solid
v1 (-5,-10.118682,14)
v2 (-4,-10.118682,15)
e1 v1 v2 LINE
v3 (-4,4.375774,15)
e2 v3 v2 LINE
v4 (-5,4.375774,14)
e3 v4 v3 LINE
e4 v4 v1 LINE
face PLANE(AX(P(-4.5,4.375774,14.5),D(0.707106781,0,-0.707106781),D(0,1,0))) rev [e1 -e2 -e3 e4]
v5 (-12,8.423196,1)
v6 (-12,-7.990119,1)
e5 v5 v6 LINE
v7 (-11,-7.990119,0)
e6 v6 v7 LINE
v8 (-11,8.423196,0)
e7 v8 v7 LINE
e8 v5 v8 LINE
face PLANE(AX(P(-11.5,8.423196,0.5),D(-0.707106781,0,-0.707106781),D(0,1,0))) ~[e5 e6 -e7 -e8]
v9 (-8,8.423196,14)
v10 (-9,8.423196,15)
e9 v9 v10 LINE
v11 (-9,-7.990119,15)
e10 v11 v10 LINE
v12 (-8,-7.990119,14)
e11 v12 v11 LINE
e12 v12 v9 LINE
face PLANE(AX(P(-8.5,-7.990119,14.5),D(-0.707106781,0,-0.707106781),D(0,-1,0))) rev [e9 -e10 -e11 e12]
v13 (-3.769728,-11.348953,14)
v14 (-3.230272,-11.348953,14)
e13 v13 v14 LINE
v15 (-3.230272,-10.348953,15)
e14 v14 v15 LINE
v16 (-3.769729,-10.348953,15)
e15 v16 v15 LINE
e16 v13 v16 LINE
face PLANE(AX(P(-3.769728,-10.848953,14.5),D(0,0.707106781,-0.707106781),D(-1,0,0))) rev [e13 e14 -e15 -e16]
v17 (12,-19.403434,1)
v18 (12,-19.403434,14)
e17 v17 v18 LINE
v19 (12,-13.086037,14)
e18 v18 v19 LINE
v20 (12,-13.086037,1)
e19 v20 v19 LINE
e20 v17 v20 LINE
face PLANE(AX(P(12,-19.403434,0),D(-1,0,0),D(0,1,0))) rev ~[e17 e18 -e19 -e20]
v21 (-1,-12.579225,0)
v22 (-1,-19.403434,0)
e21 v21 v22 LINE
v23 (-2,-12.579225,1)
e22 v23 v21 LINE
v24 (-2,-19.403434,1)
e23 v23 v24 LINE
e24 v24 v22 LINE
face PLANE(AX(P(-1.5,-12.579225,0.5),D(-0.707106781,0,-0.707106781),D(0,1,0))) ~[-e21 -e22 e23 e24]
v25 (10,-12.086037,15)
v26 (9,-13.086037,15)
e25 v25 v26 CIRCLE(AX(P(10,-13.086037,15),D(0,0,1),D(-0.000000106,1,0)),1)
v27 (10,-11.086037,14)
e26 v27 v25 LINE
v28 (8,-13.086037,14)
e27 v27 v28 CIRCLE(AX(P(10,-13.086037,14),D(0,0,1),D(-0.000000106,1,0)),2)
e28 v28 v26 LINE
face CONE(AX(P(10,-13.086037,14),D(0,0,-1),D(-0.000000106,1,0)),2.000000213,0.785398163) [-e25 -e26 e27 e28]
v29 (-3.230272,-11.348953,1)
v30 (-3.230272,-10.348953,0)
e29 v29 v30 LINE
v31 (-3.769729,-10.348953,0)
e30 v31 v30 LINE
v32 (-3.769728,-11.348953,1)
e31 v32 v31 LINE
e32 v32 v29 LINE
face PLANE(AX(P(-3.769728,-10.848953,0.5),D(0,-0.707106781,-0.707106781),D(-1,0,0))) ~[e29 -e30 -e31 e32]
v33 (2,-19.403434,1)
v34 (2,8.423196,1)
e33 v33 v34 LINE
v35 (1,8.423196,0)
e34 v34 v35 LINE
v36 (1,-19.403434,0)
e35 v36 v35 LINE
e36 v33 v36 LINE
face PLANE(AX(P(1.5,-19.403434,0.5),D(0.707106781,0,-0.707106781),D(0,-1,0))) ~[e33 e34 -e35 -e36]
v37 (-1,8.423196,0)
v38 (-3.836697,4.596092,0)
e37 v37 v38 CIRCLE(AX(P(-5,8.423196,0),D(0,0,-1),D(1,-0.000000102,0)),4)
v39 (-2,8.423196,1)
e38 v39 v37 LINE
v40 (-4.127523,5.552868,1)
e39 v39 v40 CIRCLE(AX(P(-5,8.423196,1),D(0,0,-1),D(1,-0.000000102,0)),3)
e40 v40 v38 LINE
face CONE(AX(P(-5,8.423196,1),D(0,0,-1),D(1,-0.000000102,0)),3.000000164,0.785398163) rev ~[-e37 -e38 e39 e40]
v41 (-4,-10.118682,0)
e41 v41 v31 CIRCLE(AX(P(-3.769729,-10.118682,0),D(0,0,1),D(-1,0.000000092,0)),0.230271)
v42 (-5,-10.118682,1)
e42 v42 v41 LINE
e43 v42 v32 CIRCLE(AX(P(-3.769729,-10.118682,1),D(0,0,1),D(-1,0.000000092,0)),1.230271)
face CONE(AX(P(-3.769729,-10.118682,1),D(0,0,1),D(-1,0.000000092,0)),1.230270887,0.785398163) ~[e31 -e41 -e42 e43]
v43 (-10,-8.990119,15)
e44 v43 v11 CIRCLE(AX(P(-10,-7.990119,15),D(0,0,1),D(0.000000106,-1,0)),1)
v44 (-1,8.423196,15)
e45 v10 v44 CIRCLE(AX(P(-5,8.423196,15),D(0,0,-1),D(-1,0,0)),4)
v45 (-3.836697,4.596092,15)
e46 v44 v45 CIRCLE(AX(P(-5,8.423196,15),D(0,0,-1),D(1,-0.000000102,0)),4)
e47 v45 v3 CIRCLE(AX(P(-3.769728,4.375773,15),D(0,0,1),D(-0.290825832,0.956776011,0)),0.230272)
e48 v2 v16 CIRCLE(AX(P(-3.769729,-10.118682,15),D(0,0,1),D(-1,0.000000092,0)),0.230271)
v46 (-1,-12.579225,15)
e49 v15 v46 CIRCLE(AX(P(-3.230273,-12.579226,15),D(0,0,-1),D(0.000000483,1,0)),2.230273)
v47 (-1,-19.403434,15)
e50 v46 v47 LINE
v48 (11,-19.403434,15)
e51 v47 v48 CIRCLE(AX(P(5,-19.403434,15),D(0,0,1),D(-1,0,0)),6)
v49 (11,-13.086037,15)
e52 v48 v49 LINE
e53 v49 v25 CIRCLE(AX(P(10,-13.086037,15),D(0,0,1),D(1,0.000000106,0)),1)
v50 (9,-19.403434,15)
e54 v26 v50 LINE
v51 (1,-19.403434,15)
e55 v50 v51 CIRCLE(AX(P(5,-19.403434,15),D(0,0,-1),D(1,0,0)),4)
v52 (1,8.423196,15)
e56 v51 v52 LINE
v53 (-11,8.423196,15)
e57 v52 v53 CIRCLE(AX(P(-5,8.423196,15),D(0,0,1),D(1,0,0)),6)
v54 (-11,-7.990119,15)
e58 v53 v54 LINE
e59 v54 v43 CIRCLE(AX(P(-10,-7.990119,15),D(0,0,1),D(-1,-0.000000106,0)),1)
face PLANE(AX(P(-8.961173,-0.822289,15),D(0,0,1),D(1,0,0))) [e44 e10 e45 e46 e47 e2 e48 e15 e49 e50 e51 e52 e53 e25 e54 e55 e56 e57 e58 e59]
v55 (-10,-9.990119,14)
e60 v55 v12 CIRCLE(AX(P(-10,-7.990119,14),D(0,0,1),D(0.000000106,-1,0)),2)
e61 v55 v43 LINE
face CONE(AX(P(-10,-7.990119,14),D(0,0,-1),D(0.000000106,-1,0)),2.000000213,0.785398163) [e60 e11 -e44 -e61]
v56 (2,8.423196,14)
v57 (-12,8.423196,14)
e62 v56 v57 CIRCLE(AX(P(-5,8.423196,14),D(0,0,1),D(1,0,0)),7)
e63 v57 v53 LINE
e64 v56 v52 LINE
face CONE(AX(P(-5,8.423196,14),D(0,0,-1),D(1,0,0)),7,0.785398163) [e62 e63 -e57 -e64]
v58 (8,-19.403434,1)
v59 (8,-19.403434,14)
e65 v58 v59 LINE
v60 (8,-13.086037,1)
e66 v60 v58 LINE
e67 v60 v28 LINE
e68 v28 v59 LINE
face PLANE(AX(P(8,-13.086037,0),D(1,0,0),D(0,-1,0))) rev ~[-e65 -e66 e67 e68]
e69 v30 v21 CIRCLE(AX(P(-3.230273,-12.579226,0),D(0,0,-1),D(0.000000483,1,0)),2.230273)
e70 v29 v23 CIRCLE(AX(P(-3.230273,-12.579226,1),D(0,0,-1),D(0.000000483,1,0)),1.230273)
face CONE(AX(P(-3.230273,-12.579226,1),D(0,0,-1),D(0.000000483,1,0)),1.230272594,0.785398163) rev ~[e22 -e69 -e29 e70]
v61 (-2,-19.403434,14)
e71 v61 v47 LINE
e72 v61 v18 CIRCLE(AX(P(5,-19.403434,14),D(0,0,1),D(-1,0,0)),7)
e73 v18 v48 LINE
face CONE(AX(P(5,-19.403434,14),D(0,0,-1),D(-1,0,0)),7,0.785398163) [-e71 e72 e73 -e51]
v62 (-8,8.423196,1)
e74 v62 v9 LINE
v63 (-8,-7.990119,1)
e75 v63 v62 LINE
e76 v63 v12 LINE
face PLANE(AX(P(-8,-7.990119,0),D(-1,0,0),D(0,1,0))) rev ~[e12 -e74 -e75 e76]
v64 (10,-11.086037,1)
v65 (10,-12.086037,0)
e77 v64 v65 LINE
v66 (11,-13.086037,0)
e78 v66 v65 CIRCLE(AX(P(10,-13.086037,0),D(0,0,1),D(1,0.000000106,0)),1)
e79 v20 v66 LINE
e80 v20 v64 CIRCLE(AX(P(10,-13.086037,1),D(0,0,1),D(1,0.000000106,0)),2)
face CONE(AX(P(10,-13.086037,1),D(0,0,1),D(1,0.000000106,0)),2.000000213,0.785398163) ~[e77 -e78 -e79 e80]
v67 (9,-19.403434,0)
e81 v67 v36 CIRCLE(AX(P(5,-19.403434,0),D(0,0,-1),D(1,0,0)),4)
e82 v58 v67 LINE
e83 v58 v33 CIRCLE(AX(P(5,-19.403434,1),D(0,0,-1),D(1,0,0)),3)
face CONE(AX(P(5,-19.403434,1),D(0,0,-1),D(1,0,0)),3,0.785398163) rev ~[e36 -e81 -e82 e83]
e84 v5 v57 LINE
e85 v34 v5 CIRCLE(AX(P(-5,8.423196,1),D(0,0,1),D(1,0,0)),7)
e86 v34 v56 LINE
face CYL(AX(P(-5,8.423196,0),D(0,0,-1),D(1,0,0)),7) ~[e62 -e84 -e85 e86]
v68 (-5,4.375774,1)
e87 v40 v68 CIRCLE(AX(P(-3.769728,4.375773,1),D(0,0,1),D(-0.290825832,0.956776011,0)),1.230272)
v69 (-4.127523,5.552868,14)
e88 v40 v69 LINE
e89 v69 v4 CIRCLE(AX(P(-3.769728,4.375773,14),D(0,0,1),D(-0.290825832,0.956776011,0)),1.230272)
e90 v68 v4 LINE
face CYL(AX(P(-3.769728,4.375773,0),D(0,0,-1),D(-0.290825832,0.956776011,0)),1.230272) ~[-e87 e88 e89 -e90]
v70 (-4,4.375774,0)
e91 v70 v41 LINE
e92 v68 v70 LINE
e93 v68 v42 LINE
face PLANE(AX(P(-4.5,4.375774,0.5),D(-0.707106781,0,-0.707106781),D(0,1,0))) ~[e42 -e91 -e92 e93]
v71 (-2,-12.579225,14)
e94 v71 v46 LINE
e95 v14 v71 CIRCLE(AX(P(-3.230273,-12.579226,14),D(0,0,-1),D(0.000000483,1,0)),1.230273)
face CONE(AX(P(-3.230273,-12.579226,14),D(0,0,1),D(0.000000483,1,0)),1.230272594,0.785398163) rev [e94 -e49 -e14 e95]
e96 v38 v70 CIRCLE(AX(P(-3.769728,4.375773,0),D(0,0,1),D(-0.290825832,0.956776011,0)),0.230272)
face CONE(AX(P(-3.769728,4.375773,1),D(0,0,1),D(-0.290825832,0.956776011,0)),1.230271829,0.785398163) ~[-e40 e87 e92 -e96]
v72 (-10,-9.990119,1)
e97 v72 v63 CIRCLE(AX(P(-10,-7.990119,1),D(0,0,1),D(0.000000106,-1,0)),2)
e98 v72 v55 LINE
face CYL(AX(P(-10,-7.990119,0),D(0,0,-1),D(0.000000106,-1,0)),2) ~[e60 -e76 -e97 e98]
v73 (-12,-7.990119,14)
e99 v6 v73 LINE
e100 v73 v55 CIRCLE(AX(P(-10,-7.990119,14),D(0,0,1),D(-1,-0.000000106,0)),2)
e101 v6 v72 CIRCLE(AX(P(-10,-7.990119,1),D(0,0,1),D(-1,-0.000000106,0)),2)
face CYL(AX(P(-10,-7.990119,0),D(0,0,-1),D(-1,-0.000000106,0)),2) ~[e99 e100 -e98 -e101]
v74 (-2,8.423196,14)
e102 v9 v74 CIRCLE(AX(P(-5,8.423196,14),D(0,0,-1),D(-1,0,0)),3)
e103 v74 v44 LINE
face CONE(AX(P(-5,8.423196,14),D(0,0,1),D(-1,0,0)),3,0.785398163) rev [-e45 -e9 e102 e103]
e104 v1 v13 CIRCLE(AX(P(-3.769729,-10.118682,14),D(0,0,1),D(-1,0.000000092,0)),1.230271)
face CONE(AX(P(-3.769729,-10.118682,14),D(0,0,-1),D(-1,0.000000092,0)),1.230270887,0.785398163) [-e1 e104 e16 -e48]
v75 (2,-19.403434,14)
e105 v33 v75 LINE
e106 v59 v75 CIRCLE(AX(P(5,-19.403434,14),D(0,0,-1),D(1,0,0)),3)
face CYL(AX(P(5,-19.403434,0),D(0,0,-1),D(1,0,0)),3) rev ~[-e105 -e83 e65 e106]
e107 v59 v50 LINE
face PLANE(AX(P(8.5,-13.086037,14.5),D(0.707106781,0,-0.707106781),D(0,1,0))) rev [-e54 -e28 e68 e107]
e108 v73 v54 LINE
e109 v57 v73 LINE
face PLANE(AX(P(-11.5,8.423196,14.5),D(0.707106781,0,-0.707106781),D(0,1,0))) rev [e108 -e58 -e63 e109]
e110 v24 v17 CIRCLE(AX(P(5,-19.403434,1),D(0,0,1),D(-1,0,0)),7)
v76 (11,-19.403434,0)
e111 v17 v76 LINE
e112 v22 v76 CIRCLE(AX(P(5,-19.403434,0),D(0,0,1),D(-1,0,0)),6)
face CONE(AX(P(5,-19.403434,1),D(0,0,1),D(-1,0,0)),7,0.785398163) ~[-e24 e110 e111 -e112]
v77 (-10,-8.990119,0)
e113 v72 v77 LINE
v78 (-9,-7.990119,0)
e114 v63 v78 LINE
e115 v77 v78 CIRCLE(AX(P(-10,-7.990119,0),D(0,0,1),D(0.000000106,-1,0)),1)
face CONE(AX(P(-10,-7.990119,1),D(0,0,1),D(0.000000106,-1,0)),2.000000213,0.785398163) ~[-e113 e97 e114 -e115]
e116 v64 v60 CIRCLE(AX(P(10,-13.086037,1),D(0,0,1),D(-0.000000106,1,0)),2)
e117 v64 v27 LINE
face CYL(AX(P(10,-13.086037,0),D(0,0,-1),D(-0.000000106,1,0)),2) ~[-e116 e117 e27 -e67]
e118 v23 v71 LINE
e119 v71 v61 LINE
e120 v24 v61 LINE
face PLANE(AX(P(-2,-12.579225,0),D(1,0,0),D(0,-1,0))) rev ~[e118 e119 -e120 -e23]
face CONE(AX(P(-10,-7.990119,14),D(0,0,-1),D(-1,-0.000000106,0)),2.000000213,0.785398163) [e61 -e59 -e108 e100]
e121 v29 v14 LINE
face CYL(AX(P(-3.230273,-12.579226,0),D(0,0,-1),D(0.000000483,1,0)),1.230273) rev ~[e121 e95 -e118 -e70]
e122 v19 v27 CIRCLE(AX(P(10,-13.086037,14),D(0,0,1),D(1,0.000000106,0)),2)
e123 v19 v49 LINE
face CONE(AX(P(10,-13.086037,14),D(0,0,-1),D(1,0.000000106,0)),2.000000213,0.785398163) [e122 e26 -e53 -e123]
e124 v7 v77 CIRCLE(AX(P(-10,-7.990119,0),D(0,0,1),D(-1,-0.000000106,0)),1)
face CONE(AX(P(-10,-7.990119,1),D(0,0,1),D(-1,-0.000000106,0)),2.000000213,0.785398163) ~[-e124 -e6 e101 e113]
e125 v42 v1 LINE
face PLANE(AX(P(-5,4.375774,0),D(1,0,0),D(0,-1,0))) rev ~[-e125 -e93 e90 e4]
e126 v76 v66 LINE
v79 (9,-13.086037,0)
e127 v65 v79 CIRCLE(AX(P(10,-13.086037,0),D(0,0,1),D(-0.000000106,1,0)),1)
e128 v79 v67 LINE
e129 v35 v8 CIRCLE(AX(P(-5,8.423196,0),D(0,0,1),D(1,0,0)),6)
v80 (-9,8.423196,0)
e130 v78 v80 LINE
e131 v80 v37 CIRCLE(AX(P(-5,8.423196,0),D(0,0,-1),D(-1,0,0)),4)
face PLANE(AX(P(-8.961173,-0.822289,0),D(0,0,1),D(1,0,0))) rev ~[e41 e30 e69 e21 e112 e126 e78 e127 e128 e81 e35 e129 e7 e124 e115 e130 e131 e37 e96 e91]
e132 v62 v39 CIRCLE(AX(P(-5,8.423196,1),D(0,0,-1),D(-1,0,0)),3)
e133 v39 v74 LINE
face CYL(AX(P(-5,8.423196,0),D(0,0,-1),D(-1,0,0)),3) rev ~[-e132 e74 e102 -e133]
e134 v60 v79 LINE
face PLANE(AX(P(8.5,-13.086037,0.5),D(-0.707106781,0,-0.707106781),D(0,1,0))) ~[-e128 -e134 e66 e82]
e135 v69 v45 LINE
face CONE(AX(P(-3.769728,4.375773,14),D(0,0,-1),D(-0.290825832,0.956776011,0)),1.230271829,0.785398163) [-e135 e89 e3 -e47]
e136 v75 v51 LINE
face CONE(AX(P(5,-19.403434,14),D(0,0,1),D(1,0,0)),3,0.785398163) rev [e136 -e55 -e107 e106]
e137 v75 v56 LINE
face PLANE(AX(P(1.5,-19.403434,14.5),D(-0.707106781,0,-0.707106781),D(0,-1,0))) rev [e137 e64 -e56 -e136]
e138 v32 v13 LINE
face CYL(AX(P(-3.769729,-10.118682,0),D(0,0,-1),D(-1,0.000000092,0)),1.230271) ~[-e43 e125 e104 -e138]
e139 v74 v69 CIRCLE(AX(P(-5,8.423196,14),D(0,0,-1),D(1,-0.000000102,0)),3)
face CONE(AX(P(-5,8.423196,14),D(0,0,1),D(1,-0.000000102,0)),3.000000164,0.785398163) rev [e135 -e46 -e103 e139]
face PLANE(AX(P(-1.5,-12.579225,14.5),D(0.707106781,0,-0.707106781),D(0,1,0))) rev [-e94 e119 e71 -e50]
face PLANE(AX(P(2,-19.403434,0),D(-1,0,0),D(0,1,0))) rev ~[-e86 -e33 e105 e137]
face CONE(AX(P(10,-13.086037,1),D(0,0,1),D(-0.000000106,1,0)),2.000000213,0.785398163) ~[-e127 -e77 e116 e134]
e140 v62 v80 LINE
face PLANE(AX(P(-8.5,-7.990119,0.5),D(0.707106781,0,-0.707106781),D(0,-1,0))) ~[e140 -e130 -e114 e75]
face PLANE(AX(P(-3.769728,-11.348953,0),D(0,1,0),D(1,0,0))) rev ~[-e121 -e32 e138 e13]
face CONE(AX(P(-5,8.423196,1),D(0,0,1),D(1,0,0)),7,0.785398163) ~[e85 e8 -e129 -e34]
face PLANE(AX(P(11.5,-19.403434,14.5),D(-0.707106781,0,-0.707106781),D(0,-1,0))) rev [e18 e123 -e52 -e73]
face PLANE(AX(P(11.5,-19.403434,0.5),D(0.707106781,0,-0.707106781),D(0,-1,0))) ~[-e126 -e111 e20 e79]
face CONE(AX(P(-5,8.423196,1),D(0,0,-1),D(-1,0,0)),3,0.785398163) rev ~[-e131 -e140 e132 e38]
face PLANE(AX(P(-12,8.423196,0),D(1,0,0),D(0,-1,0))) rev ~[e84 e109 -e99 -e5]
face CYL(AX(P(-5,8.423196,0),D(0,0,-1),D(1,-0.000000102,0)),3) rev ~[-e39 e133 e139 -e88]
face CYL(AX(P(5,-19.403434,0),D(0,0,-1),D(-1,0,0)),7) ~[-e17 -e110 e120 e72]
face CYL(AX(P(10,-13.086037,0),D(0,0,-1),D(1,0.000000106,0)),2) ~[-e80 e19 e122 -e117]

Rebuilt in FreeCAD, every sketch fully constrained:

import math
import FreeCAD as App
import Part
import Sketcher

V = App.Vector


def edges_at(feature, points):
    """Names of the edges that pass closest to the given points."""
    edges = feature.Shape.Edges
    near = lambda p: min(range(len(edges)), key=lambda i: edges[i].distToShape(Part.Vertex(*p))[0])
    return sorted({f"Edge{near(p) + 1}" for p in points})

doc = App.newDocument("Part")
body = doc.addObject("PartDesign::Body", "Body")

# Sketch on XY plane
sketch1 = body.newObject("Sketcher::SketchObject", "Sketch")
sketch1.AttachmentSupport = (doc.getObject("XY_Plane"), [""])
sketch1.MapMode = "FlatFace"
sketch1.addGeometry(Part.ArcOfCircle(Part.Circle(V(-5, 8.4, 0), V(0, 0, 1), 7), math.radians(0), math.radians(180)), False)
sketch1.addGeometry(Part.LineSegment(V(-12, 8.4, 0), V(-12, -8, 0)), False)
sketch1.addGeometry(Part.ArcOfCircle(Part.Circle(V(-10, -8, 0), V(0, 0, 1), 2), math.radians(-180), math.radians(-90)), False)
sketch1.addGeometry(Part.ArcOfCircle(Part.Circle(V(-10, -8, 0), V(0, 0, 1), 2), math.radians(-90), math.radians(0)), False)
sketch1.addGeometry(Part.LineSegment(V(-8, -8, 0), V(-8, 8.4, 0)), False)
sketch1.addGeometry(Part.ArcOfCircle(Part.Circle(V(-5, 8.4, 0), V(0, 0, 1), 3), math.radians(0), math.radians(180)), False)
sketch1.addGeometry(Part.ArcOfCircle(Part.Circle(V(-5, 8.4, 0), V(0, 0, 1), 3), math.radians(-73), math.radians(0)), False)
sketch1.addGeometry(Part.ArcOfCircle(Part.Circle(V(-3.8, 4.4, 0), V(0, 0, 1), 1.2), math.radians(107), math.radians(180)), False)
sketch1.addGeometry(Part.LineSegment(V(-5, 4.4, 0), V(-5, -10.1, 0)), False)
sketch1.addGeometry(Part.ArcOfCircle(Part.Circle(V(-3.8, -10.1, 0), V(0, 0, 1), 1.2), math.radians(180), math.radians(270)), False)
sketch1.addGeometry(Part.LineSegment(V(-3.8, -11.3, 0), V(-3.2, -11.3, 0)), False)
sketch1.addGeometry(Part.ArcOfCircle(Part.Circle(V(-3.2, -12.6, 0), V(0, 0, 1), 1.2), math.radians(0), math.radians(90)), False)
sketch1.addGeometry(Part.LineSegment(V(-2, -12.6, 0), V(-2, -19.4, 0)), False)
sketch1.addGeometry(Part.ArcOfCircle(Part.Circle(V(5, -19.4, 0), V(0, 0, 1), 7), math.radians(180), math.radians(360)), False)
sketch1.addGeometry(Part.LineSegment(V(12, -19.4, 0), V(12, -13.1, 0)), False)
sketch1.addGeometry(Part.ArcOfCircle(Part.Circle(V(10, -13.1, 0), V(0, 0, 1), 2), math.radians(0), math.radians(90)), False)
sketch1.addGeometry(Part.ArcOfCircle(Part.Circle(V(10, -13.1, 0), V(0, 0, 1), 2), math.radians(90), math.radians(180)), False)
sketch1.addGeometry(Part.LineSegment(V(8, -13.1, 0), V(8, -19.4, 0)), False)
sketch1.addGeometry(Part.ArcOfCircle(Part.Circle(V(5, -19.4, 0), V(0, 0, 1), 3), math.radians(180), math.radians(360)), False)
sketch1.addGeometry(Part.LineSegment(V(2, -19.4, 0), V(2, 8.4, 0)), False)
sketch1.addConstraint(Sketcher.Constraint("Tangent", 0, 2, 1, 1))
sketch1.addConstraint(Sketcher.Constraint("Tangent", 1, 2, 2, 1))
sketch1.addConstraint(Sketcher.Constraint("Tangent", 2, 2, 3, 1))
sketch1.addConstraint(Sketcher.Constraint("Tangent", 3, 2, 4, 1))
sketch1.addConstraint(Sketcher.Constraint("Tangent", 4, 2, 5, 2))
sketch1.addConstraint(Sketcher.Constraint("Tangent", 5, 1, 6, 2))
sketch1.addConstraint(Sketcher.Constraint("Tangent", 6, 1, 7, 1))
sketch1.addConstraint(Sketcher.Constraint("Tangent", 7, 2, 8, 1))
sketch1.addConstraint(Sketcher.Constraint("Tangent", 8, 2, 9, 1))
sketch1.addConstraint(Sketcher.Constraint("Tangent", 9, 2, 10, 1))
sketch1.addConstraint(Sketcher.Constraint("Tangent", 10, 2, 11, 2))
sketch1.addConstraint(Sketcher.Constraint("Tangent", 11, 1, 12, 1))
sketch1.addConstraint(Sketcher.Constraint("Tangent", 12, 2, 13, 1))
sketch1.addConstraint(Sketcher.Constraint("Tangent", 13, 2, 14, 1))
sketch1.addConstraint(Sketcher.Constraint("Tangent", 14, 2, 15, 1))
sketch1.addConstraint(Sketcher.Constraint("Tangent", 15, 2, 16, 1))
sketch1.addConstraint(Sketcher.Constraint("Tangent", 16, 2, 17, 1))
sketch1.addConstraint(Sketcher.Constraint("Tangent", 17, 2, 18, 2))
sketch1.addConstraint(Sketcher.Constraint("Tangent", 18, 1, 19, 1))
sketch1.addConstraint(Sketcher.Constraint("Tangent", 19, 2, 0, 1))
sketch1.addConstraint(Sketcher.Constraint("Vertical", 1))
sketch1.addConstraint(Sketcher.Constraint("Vertical", 4))
sketch1.addConstraint(Sketcher.Constraint("Vertical", 8))
sketch1.addConstraint(Sketcher.Constraint("Horizontal", 10))
sketch1.addConstraint(Sketcher.Constraint("Vertical", 12))
sketch1.addConstraint(Sketcher.Constraint("Vertical", 14))
sketch1.addConstraint(Sketcher.Constraint("Vertical", 17))
sketch1.addConstraint(Sketcher.Constraint("Vertical", 19))
sketch1.addConstraint(Sketcher.Constraint("Coincident", 5, 3, 0, 3))
sketch1.addConstraint(Sketcher.Constraint("Coincident", 18, 3, 13, 3))
sketch1.addConstraint(Sketcher.Constraint("Equal", 2, 3))
sketch1.addConstraint(Sketcher.Constraint("Equal", 5, 6))
sketch1.addConstraint(Sketcher.Constraint("Equal", 7, 9))
sketch1.addConstraint(Sketcher.Constraint("Equal", 9, 11))
sketch1.addConstraint(Sketcher.Constraint("Equal", 0, 13))
sketch1.addConstraint(Sketcher.Constraint("Equal", 3, 15))
sketch1.addConstraint(Sketcher.Constraint("Equal", 15, 16))
sketch1.addConstraint(Sketcher.Constraint("Symmetric", 5, 1, 19, 2, -2))
sketch1.addConstraint(Sketcher.Constraint("Vertical", 3, 3, 2, 2))
sketch1.addConstraint(Sketcher.Constraint("Vertical", 6, 3, 7, 2))
sketch1.addConstraint(Sketcher.Constraint("Vertical", 16, 3, 15, 2))
sketch1.addConstraint(Sketcher.Constraint("Radius", 0, 7.0))
sketch1.addConstraint(Sketcher.Constraint("Radius", 2, 2.0))
sketch1.addConstraint(Sketcher.Constraint("Radius", 7, 1.230272))
sketch1.addConstraint(Sketcher.Constraint("DistanceY", 11, 3, 7, 3, 16.954999))
sketch1.addConstraint(Sketcher.Constraint("DistanceY", 12, 2, 12, 1, 6.824209))
sketch1.addConstraint(Sketcher.Constraint("DistanceY", 1, 2, 1, 1, 16.413315))
sketch1.addConstraint(Sketcher.Constraint("DistanceY", 14, 1, 14, 2, 6.317397))
sketch1.addConstraint(Sketcher.Constraint("DistanceY", 2, 3, -1, 1, 7.990119))
pad1 = body.newObject("PartDesign::Pad", "Pad")
pad1.Profile = sketch1
pad1.Length = 15
doc.recompute()

chamfer = body.newObject("PartDesign::Chamfer", "Chamfer")
chamfer.Base = (pad1, edges_at(pad1, [
    (-5, 15.423, 15),
    (-12, 0.217, 15),
    (-10, -9.99, 7.5),
    (-8, 0.217, 15),
    (-5, 11.423, 15),
    (-4.758, 5.108, 15),
    (-5, -2.871, 15),
    (-4.64, -10.989, 15),
    (-3.5, -11.349, 15),
    (-2.36, -11.709, 15),
    (-2, -15.991, 15),
    (5, -26.403, 15),
    (12, -16.245, 15),
    (10, -11.086, 7.5),
    (8, -16.245, 15),
    (5, -22.403, 15),
    (2, -5.49, 15),
    (-5, 15.423, 0),
    (-12, 0.217, 0),
    (-10, -9.99, 7.5),
    (-8, 0.217, 0),
    (-5, 11.423, 0),
    (-4.758, 5.108, 0),
    (-5, -2.871, 0),
    (-4.64, -10.989, 0),
    (-3.5, -11.349, 0),
    (-2.36, -11.709, 0),
    (-2, -15.991, 0),
    (5, -26.403, 0),
    (12, -16.245, 0),
    (10, -11.086, 7.5),
    (8, -16.245, 0),
    (5, -22.403, 0),
    (2, -5.49, 0),
]))
chamfer.Size = 1

doc.recompute()
